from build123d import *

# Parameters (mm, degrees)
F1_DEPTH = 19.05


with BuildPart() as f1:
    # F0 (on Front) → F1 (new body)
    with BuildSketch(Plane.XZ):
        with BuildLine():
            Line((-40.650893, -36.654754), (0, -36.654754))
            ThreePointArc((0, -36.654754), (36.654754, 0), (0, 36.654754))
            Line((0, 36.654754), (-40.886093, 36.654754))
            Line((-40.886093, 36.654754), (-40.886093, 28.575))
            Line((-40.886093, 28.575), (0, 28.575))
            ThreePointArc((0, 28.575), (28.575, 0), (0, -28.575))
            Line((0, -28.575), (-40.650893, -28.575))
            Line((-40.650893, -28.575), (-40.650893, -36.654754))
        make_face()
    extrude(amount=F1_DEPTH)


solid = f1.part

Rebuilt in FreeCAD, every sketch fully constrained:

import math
import FreeCAD as App
import Part
import Sketcher

V = App.Vector
Q = App.Units.Quantity

doc = App.newDocument("Part")
body = doc.addObject("PartDesign::Body", "Body")

# Sketch on XZ plane
sketch1 = doc.addObject("Sketcher::SketchObject", "Sketch")
body.addObject(sketch1)
sketch1.AttachmentSupport = (doc.XZ_Plane, [""])
sketch1.MapMode = "FlatFace"
sketch1.addGeometry(Part.LineSegment(V(-40.650893, -36.654754, 0), V(0, -36.654754, 0)), False)
sketch1.addGeometry(Part.ArcOfCircle(Part.Circle(V(0, 0, 0), V(0, 0, 1), 36.654754), math.radians(-90), math.radians(90)), False)
sketch1.addGeometry(Part.LineSegment(V(0, 36.654754, 0), V(-40.886093, 36.654754, 0)), False)
sketch1.addGeometry(Part.LineSegment(V(-40.886093, 36.654754, 0), V(-40.886093, 28.575, 0)), False)
sketch1.addGeometry(Part.LineSegment(V(-40.886093, 28.575, 0), V(0, 28.575, 0)), False)
sketch1.addGeometry(Part.ArcOfCircle(Part.Circle(V(0, 0, 0), V(0, 0, 1), 28.575), math.radians(-90), math.radians(90)), False)
sketch1.addGeometry(Part.LineSegment(V(0, -28.575, 0), V(-40.650893, -28.575, 0)), False)
sketch1.addGeometry(Part.LineSegment(V(-40.650893, -28.575, 0), V(-40.650893, -36.654754, 0)), False)
sketch1.addConstraint(Sketcher.Constraint("Tangent", 0, 2, 1, 1))
sketch1.addConstraint(Sketcher.Constraint("Tangent", 1, 2, 2, 1))
sketch1.addConstraint(Sketcher.Constraint("Coincident", 2, 2, 3, 1))
sketch1.addConstraint(Sketcher.Constraint("Coincident", 3, 2, 4, 1))
sketch1.addConstraint(Sketcher.Constraint("Tangent", 4, 2, 5, 2))
sketch1.addConstraint(Sketcher.Constraint("Tangent", 5, 1, 6, 1))
sketch1.addConstraint(Sketcher.Constraint("Coincident", 6, 2, 7, 1))
sketch1.addConstraint(Sketcher.Constraint("Coincident", 7, 2, 0, 1))
sketch1.addConstraint(Sketcher.Constraint("Horizontal", 0))
sketch1.addConstraint(Sketcher.Constraint("Horizontal", 2))
sketch1.addConstraint(Sketcher.Constraint("Vertical", 3))
sketch1.addConstraint(Sketcher.Constraint("Horizontal", 4))
sketch1.addConstraint(Sketcher.Constraint("Horizontal", 6))
sketch1.addConstraint(Sketcher.Constraint("Vertical", 7))
sketch1.addConstraint(Sketcher.Constraint("Coincident", 1, 3, -1, 1))
sketch1.addConstraint(Sketcher.Constraint("Coincident", 5, 3, -1, 1))
sketch1.addConstraint(Sketcher.Constraint("Radius", 5, Q("1.125 in")))
sketch1.addConstraint(Sketcher.Constraint("Radius", 1, Q("36.654754 mm")))
sketch1.addConstraint(Sketcher.Constraint("DistanceX", 3, 2, 6, 2, Q("0.2352 mm")))
sketch1.addConstraint(Sketcher.Constraint("DistanceX", 0, 1, 0, 2, Q("40.650893 mm")))
pad1 = doc.addObject("PartDesign::Pad", "Pad")
body.addObject(pad1)
pad1.Profile = sketch1
pad1.Length = Q("0.75 in")

doc.recompute()
